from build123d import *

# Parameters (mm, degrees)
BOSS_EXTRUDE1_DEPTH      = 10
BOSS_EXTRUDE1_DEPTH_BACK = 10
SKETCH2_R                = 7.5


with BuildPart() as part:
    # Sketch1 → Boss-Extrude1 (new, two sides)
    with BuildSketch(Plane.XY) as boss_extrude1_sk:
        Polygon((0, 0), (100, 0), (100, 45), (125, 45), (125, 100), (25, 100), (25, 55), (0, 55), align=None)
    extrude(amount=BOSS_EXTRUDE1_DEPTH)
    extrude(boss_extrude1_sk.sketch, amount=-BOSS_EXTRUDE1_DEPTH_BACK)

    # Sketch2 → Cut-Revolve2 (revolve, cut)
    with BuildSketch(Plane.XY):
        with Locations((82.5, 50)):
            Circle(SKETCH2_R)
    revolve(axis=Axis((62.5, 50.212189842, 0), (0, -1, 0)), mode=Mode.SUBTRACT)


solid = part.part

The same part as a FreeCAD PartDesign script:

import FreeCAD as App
import Part
import Sketcher
from FreeCAD import Vector
Q = App.Units.Quantity


def add_polygon(sketch, points):
    """Adds a closed chain of lines whose ends are joined by coincident constraints."""
    first, n = sketch.GeometryCount, len(points)
    for a, b in zip(points, points[1:] + points[:1]):
        sketch.addGeometry(Part.LineSegment(App.Vector(*a, 0), App.Vector(*b, 0)), False)
    for i in range(n):
        sketch.addConstraint(Sketcher.Constraint("Coincident", first + i, 2, first + (i + 1) % n, 1))

doc = App.newDocument("Part")
body = doc.addObject("PartDesign::Body", "Body")

sketch1 = doc.addObject("Sketcher::SketchObject", "Sketch")
body.addObject(sketch1)
sketch1.AttachmentSupport = (doc.XY_Plane, [""])
sketch1.MapMode = "FlatFace"
add_polygon(sketch1, [(0, 0), (100, 0), (100, 45), (125, 45), (125, 100), (25, 100), (25, 55), (0, 55)])
sketch1.addConstraint([
    Sketcher.Constraint("Horizontal", 0),
    Sketcher.Constraint("Vertical", 1),
    Sketcher.Constraint("Horizontal", 2),
    Sketcher.Constraint("Vertical", 3),
    Sketcher.Constraint("Horizontal", 4),
    Sketcher.Constraint("Vertical", 5),
    Sketcher.Constraint("Horizontal", 6),
    Sketcher.Constraint("Vertical", 7),
    Sketcher.Constraint("Coincident", 7, 2, -1, 1),
    Sketcher.Constraint("Equal", 0, 4),
    Sketcher.Constraint("Equal", 1, 5),
    Sketcher.Constraint("DistanceX", 0, 1, 0, 2, Q("100 mm")),
    Sketcher.Constraint("DistanceX", 2, 1, 2, 2, Q("25 mm")),
    Sketcher.Constraint("DistanceY", 1, 1, 1, 2, Q("45 mm")),
    Sketcher.Constraint("DistanceY", 3, 1, 3, 2, Q("55 mm")),
])
pad1 = doc.addObject("PartDesign::Pad", "Pad")
body.addObject(pad1)
pad1.Profile = sketch1
pad1.Type = "TwoLengths"
pad1.Length = 10
pad1.Length2 = 10

sketch2 = doc.addObject("Sketcher::SketchObject", "Sketch001")
body.addObject(sketch2)
sketch2.AttachmentSupport = (doc.XY_Plane, [""])
sketch2.MapMode = "FlatFace"
sketch2.addGeometry(Part.Circle(Vector(82, 50, 0), Vector(0, 0, 1), 8), False)
sketch2.addGeometry(Part.LineSegment(Vector(62, 50, 0), Vector(62, 40, 0)), True)
sketch2.addConstraint([
    Sketcher.Constraint("Vertical", 1),
    Sketcher.Constraint("Horizontal", 0, 3, 1, 1),
    Sketcher.Constraint("Diameter", 0, Q("15 mm")),
    Sketcher.Constraint("DistanceY", 1, 2, 1, 1, Q("10 mm")),
    Sketcher.Constraint("DistanceY", -1, 1, 0, 3, Q("50 mm")),
    Sketcher.Constraint("DistanceX", 1, 1, 0, 3, Q("20 mm")),
    Sketcher.Constraint("DistanceX", -1, 1, 0, 3, Q("82.5 mm")),
])
groove = doc.addObject("PartDesign::Groove", "Groove")
body.addObject(groove)
groove.Profile = sketch2
groove.ReferenceAxis = (sketch2, ["Axis0"])
groove.Angle = 360

doc.recompute()
